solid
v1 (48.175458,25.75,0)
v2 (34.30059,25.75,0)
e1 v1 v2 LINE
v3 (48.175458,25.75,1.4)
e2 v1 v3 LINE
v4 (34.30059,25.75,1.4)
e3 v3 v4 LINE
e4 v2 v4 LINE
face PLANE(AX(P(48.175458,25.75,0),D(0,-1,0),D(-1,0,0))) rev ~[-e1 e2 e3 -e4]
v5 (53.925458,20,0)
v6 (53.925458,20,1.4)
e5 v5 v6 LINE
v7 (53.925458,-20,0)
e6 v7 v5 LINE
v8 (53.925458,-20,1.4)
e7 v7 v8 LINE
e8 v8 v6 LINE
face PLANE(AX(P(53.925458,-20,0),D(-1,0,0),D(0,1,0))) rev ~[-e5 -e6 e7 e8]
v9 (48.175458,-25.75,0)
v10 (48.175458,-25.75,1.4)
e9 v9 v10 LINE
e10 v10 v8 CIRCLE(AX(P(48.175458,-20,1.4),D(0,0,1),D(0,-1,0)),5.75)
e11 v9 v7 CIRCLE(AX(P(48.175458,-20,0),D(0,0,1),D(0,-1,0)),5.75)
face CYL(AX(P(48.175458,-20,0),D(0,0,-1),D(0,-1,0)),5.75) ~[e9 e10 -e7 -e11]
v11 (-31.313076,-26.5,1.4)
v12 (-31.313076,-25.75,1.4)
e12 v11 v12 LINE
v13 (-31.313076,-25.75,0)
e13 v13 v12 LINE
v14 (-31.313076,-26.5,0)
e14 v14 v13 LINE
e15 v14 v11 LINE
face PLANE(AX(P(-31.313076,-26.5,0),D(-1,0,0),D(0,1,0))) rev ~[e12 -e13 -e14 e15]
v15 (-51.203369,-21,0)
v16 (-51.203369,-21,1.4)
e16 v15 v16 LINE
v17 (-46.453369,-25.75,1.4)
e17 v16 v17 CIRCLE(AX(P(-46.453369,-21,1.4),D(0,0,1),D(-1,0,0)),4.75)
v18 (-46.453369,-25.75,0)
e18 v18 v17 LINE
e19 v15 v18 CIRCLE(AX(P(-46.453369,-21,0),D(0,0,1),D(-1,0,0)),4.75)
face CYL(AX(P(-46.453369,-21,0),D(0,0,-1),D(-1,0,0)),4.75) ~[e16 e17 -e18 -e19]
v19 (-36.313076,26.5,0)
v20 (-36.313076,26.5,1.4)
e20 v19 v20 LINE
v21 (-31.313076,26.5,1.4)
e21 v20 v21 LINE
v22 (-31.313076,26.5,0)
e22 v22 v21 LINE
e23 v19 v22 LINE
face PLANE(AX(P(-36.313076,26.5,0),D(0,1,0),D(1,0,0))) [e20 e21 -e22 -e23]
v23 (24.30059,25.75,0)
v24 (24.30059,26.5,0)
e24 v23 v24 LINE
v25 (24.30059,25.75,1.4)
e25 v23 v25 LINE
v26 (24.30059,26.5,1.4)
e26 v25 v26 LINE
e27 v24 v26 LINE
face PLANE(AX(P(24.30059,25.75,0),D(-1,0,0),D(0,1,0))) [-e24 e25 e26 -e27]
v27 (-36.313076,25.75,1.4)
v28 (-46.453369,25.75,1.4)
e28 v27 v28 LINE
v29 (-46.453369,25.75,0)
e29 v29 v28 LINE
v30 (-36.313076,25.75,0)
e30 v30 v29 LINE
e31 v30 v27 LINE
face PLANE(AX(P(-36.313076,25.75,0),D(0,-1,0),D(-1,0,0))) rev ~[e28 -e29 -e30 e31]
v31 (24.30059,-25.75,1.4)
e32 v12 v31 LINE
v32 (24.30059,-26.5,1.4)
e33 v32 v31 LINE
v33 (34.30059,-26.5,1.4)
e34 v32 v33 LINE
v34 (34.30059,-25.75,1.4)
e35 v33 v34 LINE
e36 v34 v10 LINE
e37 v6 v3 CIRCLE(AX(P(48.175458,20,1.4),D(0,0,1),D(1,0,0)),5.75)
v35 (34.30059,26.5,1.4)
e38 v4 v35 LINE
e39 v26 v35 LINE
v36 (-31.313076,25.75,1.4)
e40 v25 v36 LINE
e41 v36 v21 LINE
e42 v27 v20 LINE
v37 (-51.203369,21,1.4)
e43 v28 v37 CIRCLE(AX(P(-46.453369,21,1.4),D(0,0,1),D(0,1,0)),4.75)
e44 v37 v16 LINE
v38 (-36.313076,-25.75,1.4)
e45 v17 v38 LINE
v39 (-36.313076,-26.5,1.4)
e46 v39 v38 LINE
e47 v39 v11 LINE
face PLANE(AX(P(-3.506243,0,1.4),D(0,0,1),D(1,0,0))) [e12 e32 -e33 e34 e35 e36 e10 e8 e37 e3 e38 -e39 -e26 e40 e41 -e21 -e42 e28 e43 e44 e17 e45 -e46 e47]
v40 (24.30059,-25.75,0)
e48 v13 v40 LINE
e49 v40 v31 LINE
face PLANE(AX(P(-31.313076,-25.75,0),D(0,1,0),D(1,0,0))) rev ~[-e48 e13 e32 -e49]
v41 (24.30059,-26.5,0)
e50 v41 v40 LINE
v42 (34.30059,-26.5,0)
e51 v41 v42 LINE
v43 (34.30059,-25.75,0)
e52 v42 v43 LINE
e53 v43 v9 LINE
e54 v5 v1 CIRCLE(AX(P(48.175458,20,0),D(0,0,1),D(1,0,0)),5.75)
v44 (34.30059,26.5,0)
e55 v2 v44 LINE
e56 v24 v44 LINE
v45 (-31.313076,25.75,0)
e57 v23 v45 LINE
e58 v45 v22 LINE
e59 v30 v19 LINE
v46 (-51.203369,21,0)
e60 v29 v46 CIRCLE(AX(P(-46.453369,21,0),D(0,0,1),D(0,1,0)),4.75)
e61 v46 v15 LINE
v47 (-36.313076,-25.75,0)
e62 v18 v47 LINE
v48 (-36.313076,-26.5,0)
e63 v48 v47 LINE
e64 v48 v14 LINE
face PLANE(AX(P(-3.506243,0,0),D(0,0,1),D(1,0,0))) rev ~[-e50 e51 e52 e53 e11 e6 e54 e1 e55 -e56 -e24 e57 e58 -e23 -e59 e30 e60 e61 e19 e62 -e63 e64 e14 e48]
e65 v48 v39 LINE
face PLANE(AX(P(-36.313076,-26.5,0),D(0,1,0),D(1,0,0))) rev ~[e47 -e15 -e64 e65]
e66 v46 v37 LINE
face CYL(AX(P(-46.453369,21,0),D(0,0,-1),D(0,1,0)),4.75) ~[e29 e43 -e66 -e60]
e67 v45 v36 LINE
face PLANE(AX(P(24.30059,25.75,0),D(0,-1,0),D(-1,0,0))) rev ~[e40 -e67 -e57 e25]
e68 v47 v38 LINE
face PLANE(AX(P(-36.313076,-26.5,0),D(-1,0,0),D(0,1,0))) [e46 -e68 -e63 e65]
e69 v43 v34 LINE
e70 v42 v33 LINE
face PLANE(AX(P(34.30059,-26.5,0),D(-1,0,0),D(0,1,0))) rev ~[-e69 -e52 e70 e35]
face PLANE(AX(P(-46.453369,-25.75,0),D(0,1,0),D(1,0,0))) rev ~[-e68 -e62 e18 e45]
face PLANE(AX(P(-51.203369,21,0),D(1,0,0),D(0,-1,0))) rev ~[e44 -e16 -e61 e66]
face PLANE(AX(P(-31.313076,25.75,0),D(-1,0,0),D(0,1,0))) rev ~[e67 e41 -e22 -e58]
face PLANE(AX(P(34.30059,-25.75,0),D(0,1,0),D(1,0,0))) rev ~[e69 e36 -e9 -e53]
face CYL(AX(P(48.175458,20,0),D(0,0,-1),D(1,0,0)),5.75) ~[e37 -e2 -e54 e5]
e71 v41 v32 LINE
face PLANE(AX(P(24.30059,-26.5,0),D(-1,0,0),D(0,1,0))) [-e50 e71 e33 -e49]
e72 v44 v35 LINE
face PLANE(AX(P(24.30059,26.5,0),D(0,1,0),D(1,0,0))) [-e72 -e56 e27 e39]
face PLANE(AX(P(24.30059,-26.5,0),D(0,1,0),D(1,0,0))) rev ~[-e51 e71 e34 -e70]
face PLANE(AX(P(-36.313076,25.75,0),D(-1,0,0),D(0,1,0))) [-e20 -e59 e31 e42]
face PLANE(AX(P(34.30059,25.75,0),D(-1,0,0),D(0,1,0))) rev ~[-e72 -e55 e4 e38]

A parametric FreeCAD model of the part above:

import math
import FreeCAD as App
import Part
import Sketcher
Q = App.Units.Quantity

doc = App.newDocument("Part")
params = doc.addObject("Spreadsheet::Sheet", "Params")
for row, (alias, value) in enumerate([
    ("sketch1_width", "5 mm"),
    ("sketch1_width2", "10 mm"),
    ("sketch1_height", "42 mm"),
    ("sketch1_height2", "40 mm"),
    ("sketch1_radius", "4.75 mm"),
    ("pad1_length", "1.4 mm"),
], start=1):
    params.set(f"A{row}", alias)
    params.set(f"B{row}", "=" + value)
    params.setAlias(f"B{row}", alias)

body = doc.addObject("PartDesign::Body", "Body")

sketch1 = body.newObject("Sketcher::SketchObject", "Sketch")
sketch1.AttachmentSupport = (doc.getObject("XY_Plane"), [""])
sketch1.MapMode = "FlatFace"
sketch1.addGeometry(Part.ArcOfCircle(Part.Circle(App.Vector(-46.453369, 21, 0), App.Vector(0, 0, 1), 4.75), math.radians(90), math.radians(180)), False)
sketch1.addGeometry(Part.LineSegment(App.Vector(-51.203369, 21, 0), App.Vector(-51.203369, -21, 0)), False)
sketch1.addGeometry(Part.ArcOfCircle(Part.Circle(App.Vector(-46.453369, -21, 0), App.Vector(0, 0, 1), 4.75), math.radians(180), math.radians(270)), False)
sketch1.addGeometry(Part.LineSegment(App.Vector(-46.453369, -25.75, 0), App.Vector(-36.313076, -25.75, 0)), False)
sketch1.addGeometry(Part.LineSegment(App.Vector(-36.313076, -25.75, 0), App.Vector(-36.313076, -26.5, 0)), False)
sketch1.addGeometry(Part.LineSegment(App.Vector(-36.313076, -26.5, 0), App.Vector(-31.313076, -26.5, 0)), False)
sketch1.addGeometry(Part.LineSegment(App.Vector(-31.313076, -26.5, 0), App.Vector(-31.313076, -25.75, 0)), False)
sketch1.addGeometry(Part.LineSegment(App.Vector(-31.313076, -25.75, 0), App.Vector(24.30059, -25.75, 0)), False)
sketch1.addGeometry(Part.LineSegment(App.Vector(24.30059, -25.75, 0), App.Vector(24.30059, -26.5, 0)), False)
sketch1.addGeometry(Part.LineSegment(App.Vector(24.30059, -26.5, 0), App.Vector(34.30059, -26.5, 0)), False)
sketch1.addGeometry(Part.LineSegment(App.Vector(34.30059, -26.5, 0), App.Vector(34.30059, -25.75, 0)), False)
sketch1.addGeometry(Part.LineSegment(App.Vector(34.30059, -25.75, 0), App.Vector(48.175458, -25.75, 0)), False)
sketch1.addGeometry(Part.ArcOfCircle(Part.Circle(App.Vector(48.175458, -20, 0), App.Vector(0, 0, 1), 5.75), math.radians(-90), math.radians(0)), False)
sketch1.addGeometry(Part.LineSegment(App.Vector(53.925458, -20, 0), App.Vector(53.925458, 20, 0)), False)
sketch1.addGeometry(Part.ArcOfCircle(Part.Circle(App.Vector(48.175458, 20, 0), App.Vector(0, 0, 1), 5.75), math.radians(0), math.radians(90)), False)
sketch1.addGeometry(Part.LineSegment(App.Vector(48.175458, 25.75, 0), App.Vector(34.30059, 25.75, 0)), False)
sketch1.addGeometry(Part.LineSegment(App.Vector(34.30059, 25.75, 0), App.Vector(34.30059, 26.5, 0)), False)
sketch1.addGeometry(Part.LineSegment(App.Vector(34.30059, 26.5, 0), App.Vector(24.30059, 26.5, 0)), False)
sketch1.addGeometry(Part.LineSegment(App.Vector(24.30059, 26.5, 0), App.Vector(24.30059, 25.75, 0)), False)
sketch1.addGeometry(Part.LineSegment(App.Vector(24.30059, 25.75, 0), App.Vector(-31.313076, 25.75, 0)), False)
sketch1.addGeometry(Part.LineSegment(App.Vector(-31.313076, 25.75, 0), App.Vector(-31.313076, 26.5, 0)), False)
sketch1.addGeometry(Part.LineSegment(App.Vector(-31.313076, 26.5, 0), App.Vector(-36.313076, 26.5, 0)), False)
sketch1.addGeometry(Part.LineSegment(App.Vector(-36.313076, 26.5, 0), App.Vector(-36.313076, 25.75, 0)), False)
sketch1.addGeometry(Part.LineSegment(App.Vector(-36.313076, 25.75, 0), App.Vector(-46.453369, 25.75, 0)), False)
sketch1.addConstraint(Sketcher.Constraint("Tangent", 0, 2, 1, 1))
sketch1.addConstraint(Sketcher.Constraint("Tangent", 1, 2, 2, 1))
sketch1.addConstraint(Sketcher.Constraint("Tangent", 2, 2, 3, 1))
sketch1.addConstraint(Sketcher.Constraint("Coincident", 3, 2, 4, 1))
sketch1.addConstraint(Sketcher.Constraint("Coincident", 4, 2, 5, 1))
sketch1.addConstraint(Sketcher.Constraint("Coincident", 5, 2, 6, 1))
sketch1.addConstraint(Sketcher.Constraint("Coincident", 6, 2, 7, 1))
sketch1.addConstraint(Sketcher.Constraint("Coincident", 7, 2, 8, 1))
sketch1.addConstraint(Sketcher.Constraint("Coincident", 8, 2, 9, 1))
sketch1.addConstraint(Sketcher.Constraint("Coincident", 9, 2, 10, 1))
sketch1.addConstraint(Sketcher.Constraint("Coincident", 10, 2, 11, 1))
sketch1.addConstraint(Sketcher.Constraint("Tangent", 11, 2, 12, 1))
sketch1.addConstraint(Sketcher.Constraint("Tangent", 12, 2, 13, 1))
sketch1.addConstraint(Sketcher.Constraint("Tangent", 13, 2, 14, 1))
sketch1.addConstraint(Sketcher.Constraint("Tangent", 14, 2, 15, 1))
sketch1.addConstraint(Sketcher.Constraint("Coincident", 15, 2, 16, 1))
sketch1.addConstraint(Sketcher.Constraint("Coincident", 16, 2, 17, 1))
sketch1.addConstraint(Sketcher.Constraint("Coincident", 17, 2, 18, 1))
sketch1.addConstraint(Sketcher.Constraint("Coincident", 18, 2, 19, 1))
sketch1.addConstraint(Sketcher.Constraint("Coincident", 19, 2, 20, 1))
sketch1.addConstraint(Sketcher.Constraint("Coincident", 20, 2, 21, 1))
sketch1.addConstraint(Sketcher.Constraint("Coincident", 21, 2, 22, 1))
sketch1.addConstraint(Sketcher.Constraint("Coincident", 22, 2, 23, 1))
sketch1.addConstraint(Sketcher.Constraint("Tangent", 23, 2, 0, 1))
sketch1.addConstraint(Sketcher.Constraint("Vertical", 1))
sketch1.addConstraint(Sketcher.Constraint("Horizontal", 3))
sketch1.addConstraint(Sketcher.Constraint("Vertical", 4))
sketch1.addConstraint(Sketcher.Constraint("Horizontal", 5))
sketch1.addConstraint(Sketcher.Constraint("Vertical", 6))
sketch1.addConstraint(Sketcher.Constraint("Horizontal", 7))
sketch1.addConstraint(Sketcher.Constraint("Vertical", 8))
sketch1.addConstraint(Sketcher.Constraint("Horizontal", 9))
sketch1.addConstraint(Sketcher.Constraint("Vertical", 10))
sketch1.addConstraint(Sketcher.Constraint("Horizontal", 11))
sketch1.addConstraint(Sketcher.Constraint("Vertical", 13))
sketch1.addConstraint(Sketcher.Constraint("Horizontal", 15))
sketch1.addConstraint(Sketcher.Constraint("Vertical", 16))
sketch1.addConstraint(Sketcher.Constraint("Horizontal", 17))
sketch1.addConstraint(Sketcher.Constraint("Vertical", 18))
sketch1.addConstraint(Sketcher.Constraint("Horizontal", 19))
sketch1.addConstraint(Sketcher.Constraint("Vertical", 20))
sketch1.addConstraint(Sketcher.Constraint("Horizontal", 21))
sketch1.addConstraint(Sketcher.Constraint("Vertical", 22))
sketch1.addConstraint(Sketcher.Constraint("Horizontal", 23))
sketch1.addConstraint(Sketcher.Constraint("Equal", 0, 2))
sketch1.addConstraint(Sketcher.Constraint("Equal", 12, 14))
sketch1.addConstraint(Sketcher.Constraint("Symmetric", 10, 2, 15, 2, -1))
sketch1.addConstraint(Sketcher.Constraint("Symmetric", 8, 2, 17, 2, -1))
sketch1.addConstraint(Sketcher.Constraint("Symmetric", 6, 2, 19, 2, -1))
sketch1.addConstraint(Sketcher.Constraint("Symmetric", 4, 2, 21, 2, -1))
sketch1.addConstraint(Sketcher.Constraint("Horizontal", 3, 2, 6, 2))
sketch1.addConstraint(Sketcher.Constraint("Horizontal", 5, 2, 8, 2))
sketch1.addConstraint(Sketcher.Constraint("Horizontal", 7, 2, 10, 2))
sketch1.addConstraint(Sketcher.Constraint("Horizontal", 19, 2, 22, 2))
sketch1.addConstraint(Sketcher.Constraint("DistanceX", 5, 1, 5, 2, Q("5 mm")))
sketch1.addConstraint(Sketcher.Constraint("DistanceX", 9, 1, 9, 2, Q("10 mm")))
sketch1.addConstraint(Sketcher.Constraint("DistanceY", 1, 2, 1, 1, Q("42 mm")))
sketch1.addConstraint(Sketcher.Constraint("DistanceY", 13, 1, 13, 2, Q("40 mm")))
sketch1.addConstraint(Sketcher.Constraint("Radius", 0, Q("4.75 mm")))
sketch1.addConstraint(Sketcher.Constraint("DistanceY", 4, 2, 4, 1, Q("0.75 mm")))
sketch1.addConstraint(Sketcher.Constraint("DistanceX", 11, 1, 11, 2, Q("13.874868 mm")))
sketch1.addConstraint(Sketcher.Constraint("DistanceX", 3, 1, 3, 2, Q("10.140293 mm")))
sketch1.addConstraint(Sketcher.Constraint("DistanceX", 7, 1, 7, 2, Q("55.613666 mm")))
sketch1.addConstraint(Sketcher.Constraint("DistanceX", 0, 3, -1, 1, Q("46.453369 mm")))
sketch1.setExpression("Constraints[54]", "Params.sketch1_width")
sketch1.setExpression("Constraints[55]", "Params.sketch1_width2")
sketch1.setExpression("Constraints[56]", "Params.sketch1_height")
sketch1.setExpression("Constraints[57]", "Params.sketch1_height2")
sketch1.setExpression("Constraints[58]", "Params.sketch1_radius")
pad1 = body.newObject("PartDesign::Pad", "Pad")
pad1.Profile = sketch1
pad1.setExpression("Length", "Params.pad1_length")

doc.recompute()
